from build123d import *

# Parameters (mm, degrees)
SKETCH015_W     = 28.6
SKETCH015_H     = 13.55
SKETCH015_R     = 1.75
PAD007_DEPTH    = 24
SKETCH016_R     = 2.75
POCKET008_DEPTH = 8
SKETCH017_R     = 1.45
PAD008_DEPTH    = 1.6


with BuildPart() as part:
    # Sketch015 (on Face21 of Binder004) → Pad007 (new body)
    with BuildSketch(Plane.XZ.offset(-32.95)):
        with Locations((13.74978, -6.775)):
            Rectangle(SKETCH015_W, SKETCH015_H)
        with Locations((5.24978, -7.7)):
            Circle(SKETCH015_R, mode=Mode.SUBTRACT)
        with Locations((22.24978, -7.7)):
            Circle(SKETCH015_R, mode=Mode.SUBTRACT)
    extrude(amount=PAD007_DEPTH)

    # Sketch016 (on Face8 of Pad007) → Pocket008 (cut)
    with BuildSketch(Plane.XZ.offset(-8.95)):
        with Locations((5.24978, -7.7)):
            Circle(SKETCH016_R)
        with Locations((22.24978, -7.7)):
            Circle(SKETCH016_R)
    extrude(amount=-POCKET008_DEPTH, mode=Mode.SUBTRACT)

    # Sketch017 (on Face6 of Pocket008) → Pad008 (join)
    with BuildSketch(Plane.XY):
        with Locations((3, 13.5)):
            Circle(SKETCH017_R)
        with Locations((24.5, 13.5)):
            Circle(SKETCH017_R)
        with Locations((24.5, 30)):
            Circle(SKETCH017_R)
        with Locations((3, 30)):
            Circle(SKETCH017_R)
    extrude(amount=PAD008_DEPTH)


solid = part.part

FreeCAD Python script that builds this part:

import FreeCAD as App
import Part
import Sketcher
from FreeCAD import Vector
Q = App.Units.Quantity


def add_polygon(sketch, points):
    """Adds a closed chain of lines whose ends are joined by coincident constraints."""
    first, n = sketch.GeometryCount, len(points)
    for a, b in zip(points, points[1:] + points[:1]):
        sketch.addGeometry(Part.LineSegment(App.Vector(*a, 0), App.Vector(*b, 0)), False)
    for i in range(n):
        sketch.addConstraint(Sketcher.Constraint("Coincident", first + i, 2, first + (i + 1) % n, 1))

doc = App.newDocument("Part")
body = doc.addObject("PartDesign::Body", "Body")

# Sketch on XZ plane
sketch1 = body.newObject("Sketcher::SketchObject", "Sketch")
sketch1.AttachmentSupport = (doc.getObject("XZ_Plane"), [""])
sketch1.MapMode = "FlatFace"
sketch1.AttachmentOffset = App.Placement(Vector(0, 0, -32.95), App.Rotation())
add_polygon(sketch1, [(-0.6, 0), (-0.6, -13.6), (28, -13.6), (28, 0)])  # lines 0-3
sketch1.addGeometry(Part.Circle(Vector(5.2, -7.7, 0), Vector(0, 0, 1), 1.8), False)  # 4
sketch1.addGeometry(Part.Circle(Vector(22.2, -7.7, 0), Vector(0, 0, 1), 1.8), False)  # 5
sketch1.addConstraint([
    Sketcher.Constraint("Vertical", 0),
    Sketcher.Constraint("Horizontal", 1),
    Sketcher.Constraint("Vertical", 2),
    Sketcher.Constraint("Horizontal", 3),
    Sketcher.Constraint("Equal", 4, 5),
    Sketcher.Constraint("PointOnObject", 2, 2, -1),
    Sketcher.Constraint("Horizontal", 4, 3, 5, 3),
    Sketcher.Constraint("Diameter", 4, Q("3.5 mm")),
    Sketcher.Constraint("DistanceX", 1, 1, 1, 2, Q("28.6 mm")),
    Sketcher.Constraint("DistanceX", 4, 3, 5, 3, Q("17 mm")),
    Sketcher.Constraint("DistanceY", 0, 2, 0, 1, Q("13.55 mm")),
    Sketcher.Constraint("DistanceY", 4, 3, -1, 1, Q("7.7 mm")),
    Sketcher.Constraint("DistanceX", 0, 2, 4, 3, Q("5.8 mm")),
    Sketcher.Constraint("DistanceX", -1, 1, 4, 3, Q("5.24978 mm")),
])
pad1 = body.newObject("PartDesign::Pad", "Pad")
pad1.Profile = sketch1
pad1.Length = 24

# Sketch on XZ plane
sketch2 = body.newObject("Sketcher::SketchObject", "Sketch001")
sketch2.AttachmentSupport = (doc.getObject("XZ_Plane"), [""])
sketch2.MapMode = "FlatFace"
sketch2.AttachmentOffset = App.Placement(Vector(0, 0, -8.95), App.Rotation())
sketch2.addGeometry([
    Part.Circle(Vector(5.2, -7.7, 0), Vector(0, 0, 1), 2.8),
    Part.Circle(Vector(22.2, -7.7, 0), Vector(0, 0, 1), 2.8),
], False)
sketch2.addConstraint([
    Sketcher.Constraint("Equal", 0, 1),
    Sketcher.Constraint("Horizontal", 0, 3, 1, 3),
    Sketcher.Constraint("Diameter", 0, Q("5.5 mm")),
    Sketcher.Constraint("DistanceX", 0, 3, 1, 3, Q("17 mm")),
    Sketcher.Constraint("DistanceY", 0, 3, -1, 1, Q("7.7 mm")),
    Sketcher.Constraint("DistanceX", -1, 1, 0, 3, Q("5.24978 mm")),
])
pocket1 = body.newObject("PartDesign::Pocket", "Pocket")
pocket1.Profile = sketch2
pocket1.Length = 8

# Sketch on XY plane
sketch3 = body.newObject("Sketcher::SketchObject", "Sketch002")
sketch3.AttachmentSupport = (doc.getObject("XY_Plane"), [""])
sketch3.MapMode = "FlatFace"
sketch3.addGeometry([
    Part.Circle(Vector(3, 13.5, 0), Vector(0, 0, 1), 1.4),
    Part.Circle(Vector(24.5, 13.5, 0), Vector(0, 0, 1), 1.4),
    Part.Circle(Vector(24.5, 30, 0), Vector(0, 0, 1), 1.4),
    Part.Circle(Vector(3, 30, 0), Vector(0, 0, 1), 1.4),
], False)
sketch3.addConstraint([
    Sketcher.Constraint("Equal", 0, 1),
    Sketcher.Constraint("Equal", 1, 2),
    Sketcher.Constraint("Equal", 2, 3),
    Sketcher.Constraint("Horizontal", 0, 3, 1, 3),
    Sketcher.Constraint("Horizontal", 2, 3, 3, 3),
    Sketcher.Constraint("Vertical", 1, 3, 2, 3),
    Sketcher.Constraint("Vertical", 0, 3, 3, 3),
    Sketcher.Constraint("Diameter", 0, Q("2.9 mm")),
    Sketcher.Constraint("DistanceX", -1, 1, 0, 3, Q("3 mm")),
    Sketcher.Constraint("DistanceY", -1, 1, 2, 3, Q("30 mm")),
    Sketcher.Constraint("DistanceY", -1, 1, 0, 3, Q("13.5 mm")),
    Sketcher.Constraint("DistanceX", -1, 1, 1, 3, Q("24.5 mm")),
])
pad2 = body.newObject("PartDesign::Pad", "Pad001")
pad2.Profile = sketch3
pad2.Length = 1.6

doc.recompute()
